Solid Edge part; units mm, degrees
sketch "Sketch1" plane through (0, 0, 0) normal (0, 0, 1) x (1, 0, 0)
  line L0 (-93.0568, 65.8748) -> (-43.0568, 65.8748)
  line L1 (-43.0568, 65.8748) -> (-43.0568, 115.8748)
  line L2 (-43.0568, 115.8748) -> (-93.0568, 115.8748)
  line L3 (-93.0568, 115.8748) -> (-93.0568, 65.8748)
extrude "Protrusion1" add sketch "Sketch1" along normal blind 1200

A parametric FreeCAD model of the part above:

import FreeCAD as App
import Part
import Sketcher

V = App.Vector
Q = App.Units.Quantity


def add_polygon(sketch, points):
    """Adds a closed chain of lines whose ends are joined by coincident constraints."""
    first, n = sketch.GeometryCount, len(points)
    for a, b in zip(points, points[1:] + points[:1]):
        sketch.addGeometry(Part.LineSegment(App.Vector(*a, 0), App.Vector(*b, 0)), False)
    for i in range(n):
        sketch.addConstraint(Sketcher.Constraint("Coincident", first + i, 2, first + (i + 1) % n, 1))

doc = App.newDocument("Part")
body = doc.addObject("PartDesign::Body", "Body")

sketch1 = body.newObject("Sketcher::SketchObject", "Sketch")
sketch1.AttachmentSupport = (doc.getObject("XY_Plane"), [""])
sketch1.MapMode = "FlatFace"
add_polygon(sketch1, [(-93, 116), (-93, 66), (-43, 66), (-43, 116)])
sketch1.addConstraint([
    Sketcher.Constraint("Vertical", 0),
    Sketcher.Constraint("Horizontal", 1),
    Sketcher.Constraint("Vertical", 2),
    Sketcher.Constraint("Horizontal", 3),
    Sketcher.Constraint("Equal", 3, 0),
    Sketcher.Constraint("DistanceX", 1, 1, 1, 2, Q("50 mm")),
    Sketcher.Constraint("DistanceX", 0, 2, -1, 1, Q("93.0568 mm")),
    Sketcher.Constraint("DistanceY", -1, 1, 0, 2, Q("65.8748 mm")),
])
pad1 = body.newObject("PartDesign::Pad", "Pad")
pad1.Profile = sketch1
pad1.Length = 1200

doc.recompute()
